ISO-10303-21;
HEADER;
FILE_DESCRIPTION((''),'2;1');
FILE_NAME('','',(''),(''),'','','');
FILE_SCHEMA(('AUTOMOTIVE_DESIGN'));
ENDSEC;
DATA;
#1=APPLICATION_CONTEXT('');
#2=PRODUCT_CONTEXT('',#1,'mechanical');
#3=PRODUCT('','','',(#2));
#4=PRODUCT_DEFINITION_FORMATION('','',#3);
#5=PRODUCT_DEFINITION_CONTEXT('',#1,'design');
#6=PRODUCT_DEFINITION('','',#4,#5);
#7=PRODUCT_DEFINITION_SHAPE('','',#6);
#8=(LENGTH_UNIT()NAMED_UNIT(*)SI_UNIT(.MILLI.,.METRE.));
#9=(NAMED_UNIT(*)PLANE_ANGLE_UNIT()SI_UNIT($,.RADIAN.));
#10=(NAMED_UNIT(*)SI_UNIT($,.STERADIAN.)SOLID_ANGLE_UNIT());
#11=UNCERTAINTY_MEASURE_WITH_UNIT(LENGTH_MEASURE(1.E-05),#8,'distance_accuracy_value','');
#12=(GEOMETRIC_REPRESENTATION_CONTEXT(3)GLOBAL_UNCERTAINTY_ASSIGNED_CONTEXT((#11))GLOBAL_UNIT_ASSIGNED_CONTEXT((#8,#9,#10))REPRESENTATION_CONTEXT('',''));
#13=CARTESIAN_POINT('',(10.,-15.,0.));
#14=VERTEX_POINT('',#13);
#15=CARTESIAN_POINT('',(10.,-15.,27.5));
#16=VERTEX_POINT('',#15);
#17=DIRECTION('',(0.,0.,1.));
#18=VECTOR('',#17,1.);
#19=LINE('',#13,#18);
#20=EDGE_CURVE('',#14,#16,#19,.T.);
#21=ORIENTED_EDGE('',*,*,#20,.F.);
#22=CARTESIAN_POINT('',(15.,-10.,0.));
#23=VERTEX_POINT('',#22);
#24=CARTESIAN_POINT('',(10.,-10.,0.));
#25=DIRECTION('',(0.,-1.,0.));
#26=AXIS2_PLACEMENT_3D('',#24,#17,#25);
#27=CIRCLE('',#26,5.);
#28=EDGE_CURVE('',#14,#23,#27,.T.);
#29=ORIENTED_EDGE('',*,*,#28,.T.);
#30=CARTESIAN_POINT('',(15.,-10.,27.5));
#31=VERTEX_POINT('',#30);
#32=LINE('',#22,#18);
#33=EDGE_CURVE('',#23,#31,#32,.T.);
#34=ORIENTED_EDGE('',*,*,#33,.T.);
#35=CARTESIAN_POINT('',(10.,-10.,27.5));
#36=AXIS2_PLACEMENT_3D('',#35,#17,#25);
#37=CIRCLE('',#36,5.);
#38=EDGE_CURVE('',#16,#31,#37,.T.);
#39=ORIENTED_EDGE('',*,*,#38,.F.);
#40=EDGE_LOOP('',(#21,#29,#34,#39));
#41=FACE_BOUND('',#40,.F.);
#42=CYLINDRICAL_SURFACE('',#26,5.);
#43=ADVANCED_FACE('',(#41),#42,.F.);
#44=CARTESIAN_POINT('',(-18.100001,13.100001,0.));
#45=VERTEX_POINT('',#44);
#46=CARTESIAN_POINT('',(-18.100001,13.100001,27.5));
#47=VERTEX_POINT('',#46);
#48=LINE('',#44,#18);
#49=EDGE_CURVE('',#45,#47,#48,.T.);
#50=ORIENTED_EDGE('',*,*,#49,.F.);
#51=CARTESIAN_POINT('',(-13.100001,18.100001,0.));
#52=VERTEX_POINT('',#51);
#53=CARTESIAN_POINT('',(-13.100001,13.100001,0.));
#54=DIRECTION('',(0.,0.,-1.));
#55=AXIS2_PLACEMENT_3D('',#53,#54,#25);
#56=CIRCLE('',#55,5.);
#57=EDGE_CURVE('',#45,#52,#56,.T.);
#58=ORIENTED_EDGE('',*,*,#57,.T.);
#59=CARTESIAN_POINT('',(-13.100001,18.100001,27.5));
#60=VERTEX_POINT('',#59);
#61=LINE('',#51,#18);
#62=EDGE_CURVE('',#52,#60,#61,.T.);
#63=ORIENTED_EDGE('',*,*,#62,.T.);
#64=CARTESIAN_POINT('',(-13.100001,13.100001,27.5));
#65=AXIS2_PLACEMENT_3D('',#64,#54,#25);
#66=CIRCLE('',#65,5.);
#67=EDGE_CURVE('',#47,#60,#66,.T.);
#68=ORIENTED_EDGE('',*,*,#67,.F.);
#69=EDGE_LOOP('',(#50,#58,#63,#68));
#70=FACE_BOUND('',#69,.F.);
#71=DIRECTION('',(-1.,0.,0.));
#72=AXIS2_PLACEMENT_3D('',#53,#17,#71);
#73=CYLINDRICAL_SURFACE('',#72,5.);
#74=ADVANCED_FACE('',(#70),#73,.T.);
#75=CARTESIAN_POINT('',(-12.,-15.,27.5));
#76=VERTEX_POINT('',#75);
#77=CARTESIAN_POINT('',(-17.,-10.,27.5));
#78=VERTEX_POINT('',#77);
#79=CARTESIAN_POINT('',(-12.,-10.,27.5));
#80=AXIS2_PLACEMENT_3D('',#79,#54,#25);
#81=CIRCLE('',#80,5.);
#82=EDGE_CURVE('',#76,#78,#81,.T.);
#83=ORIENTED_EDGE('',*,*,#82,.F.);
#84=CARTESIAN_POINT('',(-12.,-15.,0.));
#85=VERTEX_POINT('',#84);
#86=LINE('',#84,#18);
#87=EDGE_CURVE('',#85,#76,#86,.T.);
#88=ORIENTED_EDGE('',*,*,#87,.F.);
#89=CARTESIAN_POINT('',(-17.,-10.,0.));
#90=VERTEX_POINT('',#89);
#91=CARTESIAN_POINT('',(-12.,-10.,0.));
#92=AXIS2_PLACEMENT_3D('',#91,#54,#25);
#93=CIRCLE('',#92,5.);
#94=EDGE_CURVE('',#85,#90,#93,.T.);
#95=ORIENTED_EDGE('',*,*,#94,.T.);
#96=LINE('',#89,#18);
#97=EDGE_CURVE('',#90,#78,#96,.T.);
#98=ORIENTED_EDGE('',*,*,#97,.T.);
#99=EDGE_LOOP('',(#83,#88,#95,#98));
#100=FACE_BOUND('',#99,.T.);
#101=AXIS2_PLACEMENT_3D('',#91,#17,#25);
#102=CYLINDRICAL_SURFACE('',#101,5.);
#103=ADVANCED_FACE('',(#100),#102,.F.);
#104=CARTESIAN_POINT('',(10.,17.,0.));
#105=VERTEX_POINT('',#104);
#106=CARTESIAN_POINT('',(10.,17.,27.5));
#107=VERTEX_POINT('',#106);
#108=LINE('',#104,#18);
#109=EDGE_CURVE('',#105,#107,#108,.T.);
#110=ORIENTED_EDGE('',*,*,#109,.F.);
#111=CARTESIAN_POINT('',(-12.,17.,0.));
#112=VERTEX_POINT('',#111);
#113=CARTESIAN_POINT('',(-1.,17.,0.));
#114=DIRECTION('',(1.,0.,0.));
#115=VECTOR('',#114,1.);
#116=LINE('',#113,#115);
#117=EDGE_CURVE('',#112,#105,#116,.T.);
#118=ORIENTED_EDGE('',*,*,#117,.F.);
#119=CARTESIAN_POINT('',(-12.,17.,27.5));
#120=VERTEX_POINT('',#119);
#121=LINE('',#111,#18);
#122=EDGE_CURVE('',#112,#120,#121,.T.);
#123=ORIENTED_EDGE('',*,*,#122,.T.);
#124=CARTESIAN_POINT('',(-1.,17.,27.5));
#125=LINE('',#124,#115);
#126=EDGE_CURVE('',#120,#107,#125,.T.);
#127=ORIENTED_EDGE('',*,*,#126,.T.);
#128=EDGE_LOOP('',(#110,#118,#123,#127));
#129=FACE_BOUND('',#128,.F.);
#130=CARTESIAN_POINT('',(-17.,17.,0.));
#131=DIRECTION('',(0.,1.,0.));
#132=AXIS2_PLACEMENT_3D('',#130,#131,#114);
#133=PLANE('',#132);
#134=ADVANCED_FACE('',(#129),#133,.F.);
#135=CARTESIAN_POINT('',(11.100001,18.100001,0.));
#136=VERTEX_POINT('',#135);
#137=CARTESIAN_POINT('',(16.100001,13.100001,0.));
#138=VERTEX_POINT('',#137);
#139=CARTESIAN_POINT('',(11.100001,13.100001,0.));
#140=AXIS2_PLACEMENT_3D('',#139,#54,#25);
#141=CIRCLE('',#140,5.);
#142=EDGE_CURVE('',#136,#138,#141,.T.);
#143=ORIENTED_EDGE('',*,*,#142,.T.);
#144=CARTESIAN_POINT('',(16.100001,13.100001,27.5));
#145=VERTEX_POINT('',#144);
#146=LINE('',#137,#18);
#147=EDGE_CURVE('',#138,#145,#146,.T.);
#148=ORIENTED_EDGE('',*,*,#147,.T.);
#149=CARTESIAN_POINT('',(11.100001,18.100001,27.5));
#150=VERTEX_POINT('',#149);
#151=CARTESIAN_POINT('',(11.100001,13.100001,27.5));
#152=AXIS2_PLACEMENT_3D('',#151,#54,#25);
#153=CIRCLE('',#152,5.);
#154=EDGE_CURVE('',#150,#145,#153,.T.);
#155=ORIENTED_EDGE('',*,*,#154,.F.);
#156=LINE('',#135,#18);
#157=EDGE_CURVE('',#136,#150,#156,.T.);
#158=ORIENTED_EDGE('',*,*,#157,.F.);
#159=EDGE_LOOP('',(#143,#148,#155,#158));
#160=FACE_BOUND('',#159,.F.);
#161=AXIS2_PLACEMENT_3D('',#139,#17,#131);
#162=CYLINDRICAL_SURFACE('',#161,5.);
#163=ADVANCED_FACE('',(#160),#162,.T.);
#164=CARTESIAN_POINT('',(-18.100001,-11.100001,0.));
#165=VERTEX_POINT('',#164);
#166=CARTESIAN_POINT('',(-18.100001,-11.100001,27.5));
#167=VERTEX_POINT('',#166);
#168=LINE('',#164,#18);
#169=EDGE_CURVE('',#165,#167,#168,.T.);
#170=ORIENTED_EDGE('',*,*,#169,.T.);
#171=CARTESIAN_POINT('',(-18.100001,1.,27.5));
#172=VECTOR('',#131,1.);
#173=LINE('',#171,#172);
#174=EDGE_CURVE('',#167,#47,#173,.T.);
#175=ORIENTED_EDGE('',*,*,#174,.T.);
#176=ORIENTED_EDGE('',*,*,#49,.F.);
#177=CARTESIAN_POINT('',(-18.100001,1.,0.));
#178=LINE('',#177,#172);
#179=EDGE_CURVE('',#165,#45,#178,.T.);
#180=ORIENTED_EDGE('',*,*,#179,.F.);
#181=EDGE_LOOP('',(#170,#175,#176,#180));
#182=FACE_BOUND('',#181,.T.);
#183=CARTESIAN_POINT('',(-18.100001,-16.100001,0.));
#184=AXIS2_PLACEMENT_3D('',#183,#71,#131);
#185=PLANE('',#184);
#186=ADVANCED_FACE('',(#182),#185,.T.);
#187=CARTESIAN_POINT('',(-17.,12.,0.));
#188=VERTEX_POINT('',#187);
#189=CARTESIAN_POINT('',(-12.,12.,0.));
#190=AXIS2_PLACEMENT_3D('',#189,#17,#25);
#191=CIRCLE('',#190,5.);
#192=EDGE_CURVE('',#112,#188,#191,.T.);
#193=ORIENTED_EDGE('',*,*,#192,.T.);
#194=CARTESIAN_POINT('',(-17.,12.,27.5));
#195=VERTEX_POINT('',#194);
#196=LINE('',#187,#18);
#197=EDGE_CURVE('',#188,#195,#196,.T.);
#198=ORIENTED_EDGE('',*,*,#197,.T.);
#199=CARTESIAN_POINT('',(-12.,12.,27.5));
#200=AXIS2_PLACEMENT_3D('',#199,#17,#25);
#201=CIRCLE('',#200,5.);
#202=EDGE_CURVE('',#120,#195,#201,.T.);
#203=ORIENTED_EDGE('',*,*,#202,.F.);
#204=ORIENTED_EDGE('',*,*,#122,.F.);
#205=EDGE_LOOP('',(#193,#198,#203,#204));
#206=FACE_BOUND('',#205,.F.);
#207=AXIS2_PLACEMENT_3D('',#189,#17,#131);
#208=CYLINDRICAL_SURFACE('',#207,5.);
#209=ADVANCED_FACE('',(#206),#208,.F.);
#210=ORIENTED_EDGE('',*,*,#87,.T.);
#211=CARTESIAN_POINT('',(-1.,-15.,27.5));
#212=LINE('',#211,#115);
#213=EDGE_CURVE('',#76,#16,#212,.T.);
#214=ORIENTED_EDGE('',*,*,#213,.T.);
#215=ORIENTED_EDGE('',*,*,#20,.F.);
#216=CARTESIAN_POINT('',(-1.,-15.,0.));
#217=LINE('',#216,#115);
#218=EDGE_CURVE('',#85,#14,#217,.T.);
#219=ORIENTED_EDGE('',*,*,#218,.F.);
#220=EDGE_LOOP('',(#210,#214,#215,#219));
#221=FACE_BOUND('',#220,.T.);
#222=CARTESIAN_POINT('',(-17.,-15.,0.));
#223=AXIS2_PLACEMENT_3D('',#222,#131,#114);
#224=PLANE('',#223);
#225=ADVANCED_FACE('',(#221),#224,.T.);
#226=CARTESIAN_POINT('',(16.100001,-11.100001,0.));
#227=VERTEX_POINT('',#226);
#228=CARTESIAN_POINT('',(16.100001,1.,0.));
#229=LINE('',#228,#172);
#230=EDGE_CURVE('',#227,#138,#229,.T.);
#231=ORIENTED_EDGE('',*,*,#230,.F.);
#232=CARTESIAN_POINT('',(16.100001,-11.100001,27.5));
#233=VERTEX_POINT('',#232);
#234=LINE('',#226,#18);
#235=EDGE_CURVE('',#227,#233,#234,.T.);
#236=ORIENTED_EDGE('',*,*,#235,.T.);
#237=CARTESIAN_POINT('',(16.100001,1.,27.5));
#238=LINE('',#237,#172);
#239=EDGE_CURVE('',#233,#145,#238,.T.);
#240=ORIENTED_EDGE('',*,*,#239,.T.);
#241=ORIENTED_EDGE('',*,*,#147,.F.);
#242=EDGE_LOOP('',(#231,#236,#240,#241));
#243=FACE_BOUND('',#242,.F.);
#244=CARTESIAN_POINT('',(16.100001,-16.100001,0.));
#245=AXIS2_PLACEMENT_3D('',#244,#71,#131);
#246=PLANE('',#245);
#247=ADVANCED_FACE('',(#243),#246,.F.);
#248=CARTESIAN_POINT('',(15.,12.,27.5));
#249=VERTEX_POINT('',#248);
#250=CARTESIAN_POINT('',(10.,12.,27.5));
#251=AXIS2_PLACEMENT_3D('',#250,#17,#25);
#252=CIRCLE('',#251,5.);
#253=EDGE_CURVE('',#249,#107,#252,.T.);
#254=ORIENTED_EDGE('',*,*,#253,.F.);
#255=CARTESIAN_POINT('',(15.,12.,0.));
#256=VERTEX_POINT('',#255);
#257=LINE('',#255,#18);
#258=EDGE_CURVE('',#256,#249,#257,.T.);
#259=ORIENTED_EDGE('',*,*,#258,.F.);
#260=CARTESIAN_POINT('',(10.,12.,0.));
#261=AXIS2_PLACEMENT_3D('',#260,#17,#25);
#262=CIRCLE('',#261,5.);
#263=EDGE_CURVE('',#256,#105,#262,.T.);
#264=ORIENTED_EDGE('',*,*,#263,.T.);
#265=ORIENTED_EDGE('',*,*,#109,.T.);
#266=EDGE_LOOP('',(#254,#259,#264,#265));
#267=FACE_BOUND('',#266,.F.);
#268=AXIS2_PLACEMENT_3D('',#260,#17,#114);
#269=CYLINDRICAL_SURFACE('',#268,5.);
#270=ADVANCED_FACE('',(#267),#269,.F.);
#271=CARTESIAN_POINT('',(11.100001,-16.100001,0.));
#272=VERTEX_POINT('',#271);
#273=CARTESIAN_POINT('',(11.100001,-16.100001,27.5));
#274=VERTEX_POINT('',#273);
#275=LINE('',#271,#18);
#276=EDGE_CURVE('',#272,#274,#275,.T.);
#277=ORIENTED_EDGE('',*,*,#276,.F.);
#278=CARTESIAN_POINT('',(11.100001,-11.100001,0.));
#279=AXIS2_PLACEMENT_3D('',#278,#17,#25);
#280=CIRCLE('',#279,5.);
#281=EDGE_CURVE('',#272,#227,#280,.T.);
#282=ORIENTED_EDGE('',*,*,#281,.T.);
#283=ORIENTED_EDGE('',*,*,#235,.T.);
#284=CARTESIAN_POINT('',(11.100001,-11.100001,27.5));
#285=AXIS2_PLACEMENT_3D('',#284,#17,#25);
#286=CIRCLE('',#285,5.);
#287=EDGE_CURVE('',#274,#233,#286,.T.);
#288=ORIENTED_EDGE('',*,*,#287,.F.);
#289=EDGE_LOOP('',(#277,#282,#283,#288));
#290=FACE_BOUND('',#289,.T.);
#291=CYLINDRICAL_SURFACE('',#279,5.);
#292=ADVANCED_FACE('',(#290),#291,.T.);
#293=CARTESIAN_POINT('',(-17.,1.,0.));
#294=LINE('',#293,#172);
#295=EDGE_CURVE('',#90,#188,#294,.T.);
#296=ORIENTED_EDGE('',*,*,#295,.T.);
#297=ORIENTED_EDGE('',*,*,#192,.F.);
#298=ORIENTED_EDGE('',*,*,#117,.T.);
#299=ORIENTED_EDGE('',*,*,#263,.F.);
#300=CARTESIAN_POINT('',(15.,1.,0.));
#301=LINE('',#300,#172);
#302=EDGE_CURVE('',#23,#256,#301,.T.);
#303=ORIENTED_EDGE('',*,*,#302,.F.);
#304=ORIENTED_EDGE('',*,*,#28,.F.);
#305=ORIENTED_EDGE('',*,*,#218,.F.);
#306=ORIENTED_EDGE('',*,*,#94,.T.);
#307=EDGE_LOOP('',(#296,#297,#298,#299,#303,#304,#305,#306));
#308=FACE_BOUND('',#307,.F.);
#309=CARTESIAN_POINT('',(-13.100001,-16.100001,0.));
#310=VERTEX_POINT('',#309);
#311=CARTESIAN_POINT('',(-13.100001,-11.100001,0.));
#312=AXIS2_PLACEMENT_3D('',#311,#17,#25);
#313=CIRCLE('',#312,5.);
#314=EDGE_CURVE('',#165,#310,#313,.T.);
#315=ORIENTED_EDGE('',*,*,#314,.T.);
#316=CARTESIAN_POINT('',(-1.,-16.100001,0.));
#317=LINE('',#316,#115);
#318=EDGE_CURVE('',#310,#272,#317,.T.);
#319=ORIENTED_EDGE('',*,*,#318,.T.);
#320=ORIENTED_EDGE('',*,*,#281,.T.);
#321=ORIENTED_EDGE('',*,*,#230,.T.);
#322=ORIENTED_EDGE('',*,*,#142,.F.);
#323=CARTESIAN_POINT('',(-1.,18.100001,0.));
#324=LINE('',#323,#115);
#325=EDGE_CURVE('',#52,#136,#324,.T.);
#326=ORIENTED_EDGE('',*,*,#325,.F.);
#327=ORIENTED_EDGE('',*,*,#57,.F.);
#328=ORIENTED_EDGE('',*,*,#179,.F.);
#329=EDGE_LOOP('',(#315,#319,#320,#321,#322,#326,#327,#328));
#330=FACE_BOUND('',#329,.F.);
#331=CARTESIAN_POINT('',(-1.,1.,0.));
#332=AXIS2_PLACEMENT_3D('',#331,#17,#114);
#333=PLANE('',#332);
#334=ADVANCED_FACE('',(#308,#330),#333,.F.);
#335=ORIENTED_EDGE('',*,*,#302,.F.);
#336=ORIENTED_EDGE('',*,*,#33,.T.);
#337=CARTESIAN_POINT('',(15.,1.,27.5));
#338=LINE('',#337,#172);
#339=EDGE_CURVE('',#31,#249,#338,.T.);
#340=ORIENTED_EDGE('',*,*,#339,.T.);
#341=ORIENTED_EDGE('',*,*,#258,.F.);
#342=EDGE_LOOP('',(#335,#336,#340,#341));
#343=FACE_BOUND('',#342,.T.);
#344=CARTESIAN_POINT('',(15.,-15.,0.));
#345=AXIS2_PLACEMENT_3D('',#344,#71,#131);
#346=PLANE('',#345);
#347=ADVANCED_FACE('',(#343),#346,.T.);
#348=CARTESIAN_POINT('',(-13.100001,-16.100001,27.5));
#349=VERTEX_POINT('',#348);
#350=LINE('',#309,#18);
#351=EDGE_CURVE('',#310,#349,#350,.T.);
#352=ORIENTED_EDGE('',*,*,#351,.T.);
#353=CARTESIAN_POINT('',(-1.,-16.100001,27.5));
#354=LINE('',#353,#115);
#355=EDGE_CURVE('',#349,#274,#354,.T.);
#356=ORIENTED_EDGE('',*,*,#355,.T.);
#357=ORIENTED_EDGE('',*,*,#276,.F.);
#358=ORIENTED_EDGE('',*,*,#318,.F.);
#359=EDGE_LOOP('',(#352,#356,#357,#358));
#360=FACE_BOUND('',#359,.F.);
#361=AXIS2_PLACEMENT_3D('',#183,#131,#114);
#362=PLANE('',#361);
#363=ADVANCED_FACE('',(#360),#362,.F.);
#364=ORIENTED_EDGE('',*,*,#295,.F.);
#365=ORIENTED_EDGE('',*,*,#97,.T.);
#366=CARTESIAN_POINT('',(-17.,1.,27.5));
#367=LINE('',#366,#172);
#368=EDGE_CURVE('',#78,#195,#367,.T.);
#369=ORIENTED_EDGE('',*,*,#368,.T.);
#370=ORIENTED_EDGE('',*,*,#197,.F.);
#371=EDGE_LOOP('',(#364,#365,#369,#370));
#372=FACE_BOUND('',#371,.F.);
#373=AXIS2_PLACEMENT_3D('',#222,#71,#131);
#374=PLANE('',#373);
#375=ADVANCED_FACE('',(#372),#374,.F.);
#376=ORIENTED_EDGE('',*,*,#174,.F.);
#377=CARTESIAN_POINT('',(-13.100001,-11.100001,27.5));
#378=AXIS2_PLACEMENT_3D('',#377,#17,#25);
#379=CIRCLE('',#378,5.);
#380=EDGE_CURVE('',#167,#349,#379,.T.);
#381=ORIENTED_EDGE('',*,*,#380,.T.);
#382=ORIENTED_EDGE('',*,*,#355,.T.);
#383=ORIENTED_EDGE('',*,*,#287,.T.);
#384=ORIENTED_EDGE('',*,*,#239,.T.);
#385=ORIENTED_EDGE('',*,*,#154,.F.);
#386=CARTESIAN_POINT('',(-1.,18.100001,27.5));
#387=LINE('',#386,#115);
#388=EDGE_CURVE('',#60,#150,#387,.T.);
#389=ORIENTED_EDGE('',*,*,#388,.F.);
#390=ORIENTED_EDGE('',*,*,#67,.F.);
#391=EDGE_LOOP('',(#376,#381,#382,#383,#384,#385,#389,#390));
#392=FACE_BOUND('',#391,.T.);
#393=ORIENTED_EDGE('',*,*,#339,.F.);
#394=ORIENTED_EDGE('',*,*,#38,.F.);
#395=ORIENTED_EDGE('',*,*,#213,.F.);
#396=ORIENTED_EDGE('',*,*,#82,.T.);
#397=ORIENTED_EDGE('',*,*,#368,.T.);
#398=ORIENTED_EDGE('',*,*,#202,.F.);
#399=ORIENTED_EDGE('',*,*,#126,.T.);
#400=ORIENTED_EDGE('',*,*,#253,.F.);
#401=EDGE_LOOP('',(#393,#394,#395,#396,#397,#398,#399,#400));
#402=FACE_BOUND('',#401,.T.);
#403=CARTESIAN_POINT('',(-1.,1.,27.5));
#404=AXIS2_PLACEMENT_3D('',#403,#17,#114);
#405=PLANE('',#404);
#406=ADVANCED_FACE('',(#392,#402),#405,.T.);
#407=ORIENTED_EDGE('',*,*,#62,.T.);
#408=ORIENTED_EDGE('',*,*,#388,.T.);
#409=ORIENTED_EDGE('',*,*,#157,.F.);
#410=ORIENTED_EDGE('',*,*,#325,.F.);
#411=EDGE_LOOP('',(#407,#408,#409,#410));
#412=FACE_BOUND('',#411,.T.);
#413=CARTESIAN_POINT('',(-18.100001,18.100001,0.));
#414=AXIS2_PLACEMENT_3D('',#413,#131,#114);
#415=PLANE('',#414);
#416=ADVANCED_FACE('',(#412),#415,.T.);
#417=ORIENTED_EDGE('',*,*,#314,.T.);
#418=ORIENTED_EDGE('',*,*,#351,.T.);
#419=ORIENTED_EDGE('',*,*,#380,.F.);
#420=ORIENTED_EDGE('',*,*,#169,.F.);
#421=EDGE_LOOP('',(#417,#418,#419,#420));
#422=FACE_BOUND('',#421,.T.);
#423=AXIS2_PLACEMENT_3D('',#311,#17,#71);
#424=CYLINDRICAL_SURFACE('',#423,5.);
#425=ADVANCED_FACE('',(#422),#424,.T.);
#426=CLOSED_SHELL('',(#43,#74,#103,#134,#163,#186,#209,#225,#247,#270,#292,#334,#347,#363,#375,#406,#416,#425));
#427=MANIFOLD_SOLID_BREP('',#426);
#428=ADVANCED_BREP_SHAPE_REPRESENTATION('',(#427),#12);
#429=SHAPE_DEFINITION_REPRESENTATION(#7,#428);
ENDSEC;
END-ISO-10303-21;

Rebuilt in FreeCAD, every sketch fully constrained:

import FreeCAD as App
import Part
import Sketcher
Q = App.Units.Quantity


def edges_at(feature, points):
    """Names of the edges that pass closest to the given points."""
    edges = feature.Shape.Edges
    near = lambda p: min(range(len(edges)), key=lambda i: edges[i].distToShape(Part.Vertex(*p))[0])
    return sorted({f"Edge{near(p) + 1}" for p in points})

doc = App.newDocument("Part")
body = doc.addObject("PartDesign::Body", "Body")

sketch1 = body.newObject("Sketcher::SketchObject", "Sketch")
sketch1.AttachmentSupport = (doc.getObject("XY_Plane"), [""])
sketch1.MapMode = "FlatFace"
sketch1.addGeometry([
    Part.LineSegment(App.Vector(-18.100001, 18.100001, 0), App.Vector(-18.100001, -16.100001, 0)),
    Part.LineSegment(App.Vector(-18.100001, -16.100001, 0), App.Vector(16.100001, -16.100001, 0)),
    Part.LineSegment(App.Vector(16.100001, -16.100001, 0), App.Vector(16.100001, 18.100001, 0)),
    Part.LineSegment(App.Vector(16.100001, 18.100001, 0), App.Vector(-18.100001, 18.100001, 0)),
    Part.LineSegment(App.Vector(15, -15, 0), App.Vector(-17, -15, 0)),
    Part.LineSegment(App.Vector(-17, -15, 0), App.Vector(-17, 17, 0)),
    Part.LineSegment(App.Vector(-17, 17, 0), App.Vector(15, 17, 0)),
    Part.LineSegment(App.Vector(15, 17, 0), App.Vector(15, -15, 0)),
], False)
sketch1.addConstraint([
    Sketcher.Constraint("Coincident", 0, 2, 1, 1),
    Sketcher.Constraint("Coincident", 1, 2, 2, 1),
    Sketcher.Constraint("Coincident", 2, 2, 3, 1),
    Sketcher.Constraint("Coincident", 3, 2, 0, 1),
    Sketcher.Constraint("Coincident", 4, 2, 5, 1),
    Sketcher.Constraint("Coincident", 5, 2, 6, 1),
    Sketcher.Constraint("Coincident", 6, 2, 7, 1),
    Sketcher.Constraint("Coincident", 7, 2, 4, 1),
    Sketcher.Constraint("Vertical", 0),
    Sketcher.Constraint("Horizontal", 1),
    Sketcher.Constraint("Vertical", 2),
    Sketcher.Constraint("Horizontal", 3),
    Sketcher.Constraint("Horizontal", 4),
    Sketcher.Constraint("Vertical", 5),
    Sketcher.Constraint("Horizontal", 6),
    Sketcher.Constraint("Vertical", 7),
    Sketcher.Constraint("Equal", 3, 0),
    Sketcher.Constraint("Equal", 6, 5),
    Sketcher.Constraint("DistanceX", 4, 2, 4, 1, Q("32 mm")),
    Sketcher.Constraint("DistanceX", 1, 1, 1, 2, Q("34.200002 mm")),
    Sketcher.Constraint("DistanceX", 4, 2, -1, 1, Q("17 mm")),
    Sketcher.Constraint("DistanceY", 4, 2, -1, 1, Q("15 mm")),
    Sketcher.Constraint("DistanceX", 0, 2, -1, 1, Q("18.100001 mm")),
    Sketcher.Constraint("DistanceY", 0, 2, -1, 1, Q("16.100001 mm")),
])
pad1 = body.newObject("PartDesign::Pad", "Pad")
pad1.Profile = sketch1
pad1.Length = 27.5
doc.recompute()

fillet = body.newObject("PartDesign::Fillet", "Fillet")
fillet.Base = (pad1, edges_at(pad1, [
    (16.1, -16.1, 13.75),
    (16.1, 18.1, 13.75),
    (-18.1, -16.1, 13.75),
    (-17, 17, 13.75),
    (-17, -15, 13.75),
    (15, -15, 13.75),
    (15, 17, 13.75),
    (-18.1, 18.1, 13.75),
]))
fillet.Radius = 5

doc.recompute()
